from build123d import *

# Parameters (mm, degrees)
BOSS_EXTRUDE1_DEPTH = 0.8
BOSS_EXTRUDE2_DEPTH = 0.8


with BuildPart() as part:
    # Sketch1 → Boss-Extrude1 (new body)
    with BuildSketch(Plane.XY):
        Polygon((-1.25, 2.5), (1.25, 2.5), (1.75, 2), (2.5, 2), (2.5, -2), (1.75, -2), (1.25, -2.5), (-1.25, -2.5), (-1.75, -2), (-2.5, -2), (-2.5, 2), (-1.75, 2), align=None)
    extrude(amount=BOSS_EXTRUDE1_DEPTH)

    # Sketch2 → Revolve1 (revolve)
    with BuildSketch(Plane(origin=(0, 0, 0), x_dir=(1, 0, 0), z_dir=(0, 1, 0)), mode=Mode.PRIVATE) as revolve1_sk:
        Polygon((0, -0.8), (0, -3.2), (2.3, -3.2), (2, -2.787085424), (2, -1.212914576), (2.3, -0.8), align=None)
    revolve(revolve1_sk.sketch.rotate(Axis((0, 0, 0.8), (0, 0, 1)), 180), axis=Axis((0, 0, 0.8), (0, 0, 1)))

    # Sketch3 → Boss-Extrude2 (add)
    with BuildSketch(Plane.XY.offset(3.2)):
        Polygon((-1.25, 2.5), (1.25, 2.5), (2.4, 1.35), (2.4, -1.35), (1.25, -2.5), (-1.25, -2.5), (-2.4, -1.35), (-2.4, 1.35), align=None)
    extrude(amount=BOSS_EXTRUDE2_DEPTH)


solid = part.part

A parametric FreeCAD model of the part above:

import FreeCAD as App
import Part
import Sketcher

V = App.Vector
Q = App.Units.Quantity

doc = App.newDocument("Part")
body = doc.addObject("PartDesign::Body", "Body")

sketch1 = body.newObject("Sketcher::SketchObject", "Sketch")
sketch1.AttachmentSupport = (doc.getObject("XY_Plane"), [""])
sketch1.MapMode = "FlatFace"
sketch1.addGeometry([
    Part.LineSegment(V(1.2, 2.5, 0), V(-1.2, 2.5, 0)),
    Part.LineSegment(V(-1.2, 2.5, 0), V(-1.8, 2, 0)),
    Part.LineSegment(V(-1.8, 2, 0), V(-2.5, 2, 0)),
    Part.LineSegment(V(-2.5, 2, 0), V(-2.5, -2, 0)),
    Part.LineSegment(V(-2.5, -2, 0), V(-1.8, -2, 0)),
    Part.LineSegment(V(-1.8, -2, 0), V(-1.2, -2.5, 0)),
    Part.LineSegment(V(-1.2, -2.5, 0), V(1.2, -2.5, 0)),
    Part.LineSegment(V(1.2, -2.5, 0), V(1.8, -2, 0)),
    Part.LineSegment(V(1.8, -2, 0), V(2.5, -2, 0)),
    Part.LineSegment(V(2.5, -2, 0), V(2.5, 2, 0)),
    Part.LineSegment(V(2.5, 2, 0), V(1.8, 2, 0)),
    Part.LineSegment(V(1.8, 2, 0), V(1.2, 2.5, 0)),
], False)
sketch1.addConstraint([
    Sketcher.Constraint("Coincident", 0, 2, 1, 1),
    Sketcher.Constraint("Coincident", 1, 2, 2, 1),
    Sketcher.Constraint("Coincident", 2, 2, 3, 1),
    Sketcher.Constraint("Coincident", 3, 2, 4, 1),
    Sketcher.Constraint("Coincident", 4, 2, 5, 1),
    Sketcher.Constraint("Coincident", 5, 2, 6, 1),
    Sketcher.Constraint("Coincident", 6, 2, 7, 1),
    Sketcher.Constraint("Coincident", 7, 2, 8, 1),
    Sketcher.Constraint("Coincident", 8, 2, 9, 1),
    Sketcher.Constraint("Coincident", 9, 2, 10, 1),
    Sketcher.Constraint("Coincident", 10, 2, 11, 1),
    Sketcher.Constraint("Coincident", 11, 2, 0, 1),
    Sketcher.Constraint("Horizontal", 0),
    Sketcher.Constraint("Horizontal", 2),
    Sketcher.Constraint("Vertical", 3),
    Sketcher.Constraint("Horizontal", 4),
    Sketcher.Constraint("Horizontal", 6),
    Sketcher.Constraint("Horizontal", 8),
    Sketcher.Constraint("Vertical", 9),
    Sketcher.Constraint("Horizontal", 10),
    Sketcher.Constraint("Symmetric", 0, 2, 6, 2, -1, 1),
    Sketcher.Constraint("Symmetric", 1, 2, 7, 2, -1, 1),
    Sketcher.Constraint("Symmetric", 3, 2, 9, 2, -1, 1),
    Sketcher.Constraint("Symmetric", 4, 2, 7, 2, -2),
    Sketcher.Constraint("Perpendicular", 1, 5),
    Sketcher.Constraint("Perpendicular", 7, 11),
    Sketcher.Constraint("Vertical", 0, 2, 5, 2),
    Sketcher.Constraint("Vertical", 7, 2, 10, 2),
    Sketcher.Constraint("DistanceY", 3, 2, 3, 1, Q("4 mm")),
    Sketcher.Constraint("DistanceX", 0, 2, 0, 1, Q("2.5 mm")),
    Sketcher.Constraint("DistanceY", 5, 2, 0, 2, Q("5 mm")),
    Sketcher.Constraint("DistanceX", 3, 2, 8, 2, Q("5 mm")),
])
pad1 = body.newObject("PartDesign::Pad", "Pad")
pad1.Profile = sketch1
pad1.Length = 0.8

sketch2 = body.newObject("Sketcher::SketchObject", "Sketch001")
sketch2.AttachmentSupport = (doc.getObject("XZ_Plane"), [""])
sketch2.MapMode = "FlatFace"
sketch2.addGeometry([
    Part.LineSegment(V(0, 0.8, 0), V(0, 3.2, 0)),
    Part.LineSegment(V(0, 3.2, 0), V(2.3, 3.2, 0)),
    Part.LineSegment(V(2.3, 3.2, 0), V(2, 2.8, 0)),
    Part.LineSegment(V(2, 2.8, 0), V(2, 1.2, 0)),
    Part.LineSegment(V(2, 1.2, 0), V(2.3, 0.8, 0)),
    Part.LineSegment(V(2.3, 0.8, 0), V(0, 0.8, 0)),
], False)
sketch2.addConstraint([
    Sketcher.Constraint("Coincident", 0, 2, 1, 1),
    Sketcher.Constraint("Coincident", 1, 2, 2, 1),
    Sketcher.Constraint("Coincident", 2, 2, 3, 1),
    Sketcher.Constraint("Coincident", 3, 2, 4, 1),
    Sketcher.Constraint("Coincident", 4, 2, 5, 1),
    Sketcher.Constraint("Coincident", 5, 2, 0, 1),
    Sketcher.Constraint("Vertical", 0),
    Sketcher.Constraint("Horizontal", 1),
    Sketcher.Constraint("Vertical", 3),
    Sketcher.Constraint("Horizontal", 5),
    Sketcher.Constraint("PointOnObject", 0, 2, -2),
    Sketcher.Constraint("Vertical", 1, 2, 4, 2),
    Sketcher.Constraint("Equal", 2, 4),
    Sketcher.Constraint("Angle", 2, Q("-126 deg")),
    Sketcher.Constraint("DistanceX", 1, 1, 1, 2, Q("2.3 mm")),
    Sketcher.Constraint("DistanceY", 0, 1, 0, 2, Q("2.4 mm")),
    Sketcher.Constraint("DistanceX", -1, 1, 2, 2, Q("2 mm")),
    Sketcher.Constraint("DistanceY", -1, 1, 0, 2, Q("3.2 mm")),
])
revolution = body.newObject("PartDesign::Revolution", "Revolution")
revolution.Profile = sketch2
revolution.ReferenceAxis = (sketch2, ["V_Axis"])
revolution.Angle = 360

sketch3 = body.newObject("Sketcher::SketchObject", "Sketch002")
sketch3.AttachmentSupport = (doc.getObject("XY_Plane"), [""])
sketch3.MapMode = "FlatFace"
sketch3.AttachmentOffset = App.Placement(V(0, 0, 3.2), App.Rotation())
sketch3.addGeometry([
    Part.LineSegment(V(1.2, 2.5, 0), V(-1.2, 2.5, 0)),
    Part.LineSegment(V(-1.2, 2.5, 0), V(-2.4, 1.4, 0)),
    Part.LineSegment(V(-2.4, 1.4, 0), V(-2.4, -1.4, 0)),
    Part.LineSegment(V(-2.4, -1.4, 0), V(-1.2, -2.5, 0)),
    Part.LineSegment(V(-1.2, -2.5, 0), V(1.2, -2.5, 0)),
    Part.LineSegment(V(1.2, -2.5, 0), V(2.4, -1.4, 0)),
    Part.LineSegment(V(2.4, -1.4, 0), V(2.4, 1.4, 0)),
    Part.LineSegment(V(2.4, 1.4, 0), V(1.2, 2.5, 0)),
], False)
sketch3.addConstraint([
    Sketcher.Constraint("Coincident", 0, 2, 1, 1),
    Sketcher.Constraint("Coincident", 1, 2, 2, 1),
    Sketcher.Constraint("Coincident", 2, 2, 3, 1),
    Sketcher.Constraint("Coincident", 3, 2, 4, 1),
    Sketcher.Constraint("Coincident", 4, 2, 5, 1),
    Sketcher.Constraint("Coincident", 5, 2, 6, 1),
    Sketcher.Constraint("Coincident", 6, 2, 7, 1),
    Sketcher.Constraint("Coincident", 7, 2, 0, 1),
    Sketcher.Constraint("Horizontal", 0),
    Sketcher.Constraint("Vertical", 2),
    Sketcher.Constraint("Horizontal", 4),
    Sketcher.Constraint("Vertical", 6),
    Sketcher.Constraint("Symmetric", 0, 2, 4, 2, -1, 1),
    Sketcher.Constraint("Symmetric", 1, 2, 5, 2, -1, 1),
    Sketcher.Constraint("Perpendicular", 1, 3),
    Sketcher.Constraint("Perpendicular", 5, 7),
    Sketcher.Constraint("Horizontal", 2, 2, 5, 2),
    Sketcher.Constraint("Horizontal", 1, 2, 6, 2),
    Sketcher.Constraint("Vertical", 0, 2, 3, 2),
    Sketcher.Constraint("DistanceX", 0, 2, 0, 1, Q("2.5 mm")),
    Sketcher.Constraint("DistanceY", 2, 2, 2, 1, Q("2.7 mm")),
    Sketcher.Constraint("DistanceY", 3, 2, 0, 2, Q("5 mm")),
])
pad2 = body.newObject("PartDesign::Pad", "Pad001")
pad2.Profile = sketch3
pad2.Length = 0.8

doc.recompute()
